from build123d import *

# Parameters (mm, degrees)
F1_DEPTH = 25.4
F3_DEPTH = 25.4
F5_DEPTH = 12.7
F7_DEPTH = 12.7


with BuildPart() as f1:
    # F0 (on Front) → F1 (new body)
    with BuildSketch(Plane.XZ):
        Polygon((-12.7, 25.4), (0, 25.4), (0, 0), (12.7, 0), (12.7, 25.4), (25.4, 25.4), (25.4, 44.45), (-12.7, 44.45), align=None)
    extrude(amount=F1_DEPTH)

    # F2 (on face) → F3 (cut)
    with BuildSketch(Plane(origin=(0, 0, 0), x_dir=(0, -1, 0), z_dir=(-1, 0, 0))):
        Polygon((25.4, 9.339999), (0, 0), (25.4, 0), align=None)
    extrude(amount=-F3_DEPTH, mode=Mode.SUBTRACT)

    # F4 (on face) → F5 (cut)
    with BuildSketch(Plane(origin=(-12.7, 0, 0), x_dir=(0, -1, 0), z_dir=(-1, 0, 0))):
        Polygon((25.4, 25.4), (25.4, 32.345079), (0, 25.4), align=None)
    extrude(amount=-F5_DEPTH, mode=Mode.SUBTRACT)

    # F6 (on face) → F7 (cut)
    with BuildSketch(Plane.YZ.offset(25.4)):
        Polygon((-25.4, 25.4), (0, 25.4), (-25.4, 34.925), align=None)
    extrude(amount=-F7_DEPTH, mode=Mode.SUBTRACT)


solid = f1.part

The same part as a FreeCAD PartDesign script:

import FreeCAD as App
import Part
import Sketcher
Q = App.Units.Quantity


def add_polygon(sketch, points):
    """Adds a closed chain of lines whose ends are joined by coincident constraints."""
    first, n = sketch.GeometryCount, len(points)
    for a, b in zip(points, points[1:] + points[:1]):
        sketch.addGeometry(Part.LineSegment(App.Vector(*a, 0), App.Vector(*b, 0)), False)
    for i in range(n):
        sketch.addConstraint(Sketcher.Constraint("Coincident", first + i, 2, first + (i + 1) % n, 1))

doc = App.newDocument("Part")
body = doc.addObject("PartDesign::Body", "Body")

sketch1 = doc.addObject("Sketcher::SketchObject", "Sketch")
body.addObject(sketch1)
sketch1.AttachmentSupport = (doc.XZ_Plane, [""])
sketch1.MapMode = "FlatFace"
add_polygon(sketch1, [(-13, 25), (0, 25), (0, 0), (13, 0), (13, 25), (25, 25), (25, 44), (-13, 44)])
sketch1.addConstraint(Sketcher.Constraint("Horizontal", 0))
sketch1.addConstraint(Sketcher.Constraint("Vertical", 1))
sketch1.addConstraint(Sketcher.Constraint("Horizontal", 2))
sketch1.addConstraint(Sketcher.Constraint("Vertical", 3))
sketch1.addConstraint(Sketcher.Constraint("Horizontal", 4))
sketch1.addConstraint(Sketcher.Constraint("Vertical", 5))
sketch1.addConstraint(Sketcher.Constraint("Horizontal", 6))
sketch1.addConstraint(Sketcher.Constraint("Vertical", 7))
sketch1.addConstraint(Sketcher.Constraint("Coincident", 1, 2, -1, 1))
sketch1.addConstraint(Sketcher.Constraint("Symmetric", 3, 2, 7, 2, -2))
sketch1.addConstraint(Sketcher.Constraint("Equal", 2, 4))
sketch1.addConstraint(Sketcher.Constraint("DistanceY", 1, 2, 1, 1, Q("1 in")))
sketch1.addConstraint(Sketcher.Constraint("DistanceX", 0, 1, 0, 2, Q("0.5 in")))
sketch1.addConstraint(Sketcher.Constraint("DistanceY", 5, 1, 5, 2, Q("0.75 in")))
pad1 = doc.addObject("PartDesign::Pad", "Pad")
body.addObject(pad1)
pad1.Profile = sketch1
pad1.Length = Q("1 in")

sketch2 = doc.addObject("Sketcher::SketchObject", "Sketch001")
body.addObject(sketch2)
sketch2.AttachmentSupport = (doc.YZ_Plane, [""])
sketch2.MapMode = "FlatFace"
add_polygon(sketch2, [(-25, 9), (0, 0), (-25, 0)])
sketch2.addConstraint(Sketcher.Constraint("Horizontal", 1))
sketch2.addConstraint(Sketcher.Constraint("Vertical", 2))
sketch2.addConstraint(Sketcher.Constraint("Coincident", 0, 2, -1, 1))
sketch2.addConstraint(Sketcher.Constraint("DistanceX", 1, 2, 1, 1, Q("1 in")))
sketch2.addConstraint(Sketcher.Constraint("DistanceY", 2, 1, 2, 2, 9.339999))
pocket1 = doc.addObject("PartDesign::Pocket", "Pocket")
body.addObject(pocket1)
pocket1.Profile = sketch2
pocket1.Length = Q("1 in")
pocket1.Reversed = True

sketch3 = doc.addObject("Sketcher::SketchObject", "Sketch002")
body.addObject(sketch3)
sketch3.AttachmentSupport = (doc.YZ_Plane, [""])
sketch3.MapMode = "FlatFace"
sketch3.AttachmentOffset = App.Placement(App.Vector(0, 0, -0.5 * 25.4), App.Rotation())
add_polygon(sketch3, [(-25, 25), (-25, 32), (0, 25)])
sketch3.addConstraint(Sketcher.Constraint("Vertical", 0))
sketch3.addConstraint(Sketcher.Constraint("Horizontal", 2))
sketch3.addConstraint(Sketcher.Constraint("PointOnObject", 1, 2, -2))
sketch3.addConstraint(Sketcher.Constraint("DistanceX", 2, 2, 2, 1, Q("1 in")))
sketch3.addConstraint(Sketcher.Constraint("DistanceY", -1, 1, 1, 2, Q("1 in")))
sketch3.addConstraint(Sketcher.Constraint("DistanceY", 0, 1, 0, 2, 6.945079))
pocket2 = doc.addObject("PartDesign::Pocket", "Pocket001")
body.addObject(pocket2)
pocket2.Profile = sketch3
pocket2.Length = Q("0.5 in")
pocket2.Reversed = True

sketch4 = doc.addObject("Sketcher::SketchObject", "Sketch003")
body.addObject(sketch4)
sketch4.AttachmentSupport = (doc.YZ_Plane, [""])
sketch4.MapMode = "FlatFace"
sketch4.AttachmentOffset = App.Placement(App.Vector(0, 0, 1 * 25.4), App.Rotation())
add_polygon(sketch4, [(-25, 25), (0, 25), (-25, 35)])
sketch4.addConstraint(Sketcher.Constraint("Horizontal", 0))
sketch4.addConstraint(Sketcher.Constraint("Vertical", 2))
sketch4.addConstraint(Sketcher.Constraint("PointOnObject", 0, 2, -2))
sketch4.addConstraint(Sketcher.Constraint("DistanceX", 0, 1, 0, 2, Q("1 in")))
sketch4.addConstraint(Sketcher.Constraint("DistanceY", -1, 1, 0, 2, Q("1 in")))
sketch4.addConstraint(Sketcher.Constraint("DistanceY", 2, 2, 2, 1, Q("0.375 in")))
pocket3 = doc.addObject("PartDesign::Pocket", "Pocket002")
body.addObject(pocket3)
pocket3.Profile = sketch4
pocket3.Length = Q("0.5 in")

doc.recompute()
